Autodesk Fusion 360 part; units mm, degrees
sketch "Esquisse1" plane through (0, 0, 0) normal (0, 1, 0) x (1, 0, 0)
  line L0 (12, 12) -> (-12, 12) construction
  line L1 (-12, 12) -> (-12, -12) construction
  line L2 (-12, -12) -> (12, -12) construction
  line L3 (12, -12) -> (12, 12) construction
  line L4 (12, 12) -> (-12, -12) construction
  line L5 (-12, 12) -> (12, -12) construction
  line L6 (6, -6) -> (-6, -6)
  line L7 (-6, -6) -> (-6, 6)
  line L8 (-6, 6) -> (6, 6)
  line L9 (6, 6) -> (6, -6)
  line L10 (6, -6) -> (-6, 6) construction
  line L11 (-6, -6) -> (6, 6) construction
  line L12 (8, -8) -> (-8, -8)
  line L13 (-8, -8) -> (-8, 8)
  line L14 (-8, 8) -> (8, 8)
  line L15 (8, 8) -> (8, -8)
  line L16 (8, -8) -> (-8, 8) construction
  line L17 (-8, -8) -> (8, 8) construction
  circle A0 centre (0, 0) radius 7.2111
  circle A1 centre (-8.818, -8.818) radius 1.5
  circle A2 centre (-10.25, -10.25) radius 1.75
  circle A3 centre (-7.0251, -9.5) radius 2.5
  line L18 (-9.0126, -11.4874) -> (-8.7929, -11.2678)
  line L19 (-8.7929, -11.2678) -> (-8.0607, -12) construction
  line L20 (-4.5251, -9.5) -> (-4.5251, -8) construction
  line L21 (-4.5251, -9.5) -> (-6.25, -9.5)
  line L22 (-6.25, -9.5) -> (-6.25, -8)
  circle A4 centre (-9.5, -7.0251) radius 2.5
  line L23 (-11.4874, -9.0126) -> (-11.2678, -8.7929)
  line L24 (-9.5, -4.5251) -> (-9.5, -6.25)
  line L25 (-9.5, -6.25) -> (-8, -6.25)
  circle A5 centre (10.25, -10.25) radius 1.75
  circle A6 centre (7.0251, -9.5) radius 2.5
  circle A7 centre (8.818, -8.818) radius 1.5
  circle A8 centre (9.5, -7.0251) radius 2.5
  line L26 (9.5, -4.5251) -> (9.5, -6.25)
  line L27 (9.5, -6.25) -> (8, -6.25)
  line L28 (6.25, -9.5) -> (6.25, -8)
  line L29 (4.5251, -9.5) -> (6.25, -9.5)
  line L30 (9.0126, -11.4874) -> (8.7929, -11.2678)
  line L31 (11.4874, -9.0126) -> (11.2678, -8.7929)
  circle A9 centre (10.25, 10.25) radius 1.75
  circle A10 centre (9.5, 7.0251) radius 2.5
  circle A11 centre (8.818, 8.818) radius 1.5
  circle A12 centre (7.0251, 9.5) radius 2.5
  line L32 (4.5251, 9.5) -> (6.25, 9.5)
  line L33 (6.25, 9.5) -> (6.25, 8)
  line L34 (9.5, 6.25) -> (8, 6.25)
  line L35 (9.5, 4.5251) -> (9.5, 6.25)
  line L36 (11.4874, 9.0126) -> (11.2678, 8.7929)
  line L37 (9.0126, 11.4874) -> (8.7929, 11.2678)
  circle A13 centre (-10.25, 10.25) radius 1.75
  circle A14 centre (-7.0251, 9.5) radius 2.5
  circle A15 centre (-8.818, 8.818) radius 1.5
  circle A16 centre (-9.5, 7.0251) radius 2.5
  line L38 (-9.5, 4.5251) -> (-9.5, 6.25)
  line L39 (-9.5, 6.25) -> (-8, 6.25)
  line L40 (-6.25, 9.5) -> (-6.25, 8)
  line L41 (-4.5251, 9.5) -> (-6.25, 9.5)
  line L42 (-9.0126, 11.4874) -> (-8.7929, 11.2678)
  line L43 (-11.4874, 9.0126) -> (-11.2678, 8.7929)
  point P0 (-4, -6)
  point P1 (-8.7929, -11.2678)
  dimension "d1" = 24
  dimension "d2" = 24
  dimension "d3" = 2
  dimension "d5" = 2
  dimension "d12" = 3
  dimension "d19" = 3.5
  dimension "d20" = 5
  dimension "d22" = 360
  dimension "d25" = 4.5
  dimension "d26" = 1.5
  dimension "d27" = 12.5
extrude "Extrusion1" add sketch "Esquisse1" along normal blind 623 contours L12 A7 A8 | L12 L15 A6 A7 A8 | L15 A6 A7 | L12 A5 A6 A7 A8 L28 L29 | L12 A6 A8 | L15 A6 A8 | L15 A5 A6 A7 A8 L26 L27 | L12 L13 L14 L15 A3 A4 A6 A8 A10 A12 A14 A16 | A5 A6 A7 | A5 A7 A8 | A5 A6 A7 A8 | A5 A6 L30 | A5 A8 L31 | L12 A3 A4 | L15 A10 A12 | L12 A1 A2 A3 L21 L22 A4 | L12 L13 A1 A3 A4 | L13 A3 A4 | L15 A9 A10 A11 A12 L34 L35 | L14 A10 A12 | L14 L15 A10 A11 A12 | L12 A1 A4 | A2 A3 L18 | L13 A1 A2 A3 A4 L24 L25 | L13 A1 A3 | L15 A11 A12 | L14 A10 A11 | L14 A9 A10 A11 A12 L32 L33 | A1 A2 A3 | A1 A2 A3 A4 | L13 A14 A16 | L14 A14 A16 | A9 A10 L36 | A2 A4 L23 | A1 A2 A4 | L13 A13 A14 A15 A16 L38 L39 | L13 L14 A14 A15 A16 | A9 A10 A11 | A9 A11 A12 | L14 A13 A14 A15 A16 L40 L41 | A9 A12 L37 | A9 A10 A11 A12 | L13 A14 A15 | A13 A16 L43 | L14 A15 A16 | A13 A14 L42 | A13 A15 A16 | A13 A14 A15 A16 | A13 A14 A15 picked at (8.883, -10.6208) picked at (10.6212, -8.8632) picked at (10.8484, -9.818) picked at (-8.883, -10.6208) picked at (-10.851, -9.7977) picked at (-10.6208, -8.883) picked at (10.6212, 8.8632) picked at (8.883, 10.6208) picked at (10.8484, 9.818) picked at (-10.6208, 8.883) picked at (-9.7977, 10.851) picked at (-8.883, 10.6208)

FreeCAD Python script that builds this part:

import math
import FreeCAD as App
import Part
import Sketcher

V = App.Vector
Q = App.Units.Quantity

doc = App.newDocument("Part")
body = doc.addObject("PartDesign::Body", "Body")

sketch1 = doc.addObject("Sketcher::SketchObject", "Sketch")
body.addObject(sketch1)
sketch1.AttachmentSupport = (doc.XZ_Plane, [""])
sketch1.MapMode = "FlatFace"
sketch1.addGeometry(Part.ArcOfCircle(Part.Circle(V(7.03, 9.5, 0), V(0, 0, 1), 2.5), math.radians(45), math.radians(180)), False)
sketch1.addGeometry(Part.LineSegment(V(8.79, 11.27, 0), V(9.01, 11.49, 0)), False)
sketch1.addGeometry(Part.ArcOfCircle(Part.Circle(V(10.25, 10.25, 0), V(0, 0, 1), 1.75), math.radians(-45), math.radians(135)), False)
sketch1.addGeometry(Part.LineSegment(V(11.49, 9.01, 0), V(11.27, 8.79, 0)), False)
sketch1.addGeometry(Part.ArcOfCircle(Part.Circle(V(9.5, 7.03, 0), V(0, 0, 1), 2.5), math.radians(-90), math.radians(45)), False)
sketch1.addGeometry(Part.LineSegment(V(9.5, 4.53, 0), V(9.5, 6.25, 0)), False)
sketch1.addGeometry(Part.LineSegment(V(9.5, 6.25, 0), V(8, 6.25, 0)), False)
sketch1.addGeometry(Part.LineSegment(V(8, 6.25, 0), V(8, -6.25, 0)), False)
sketch1.addGeometry(Part.LineSegment(V(8, -6.25, 0), V(9.5, -6.25, 0)), False)
sketch1.addGeometry(Part.LineSegment(V(9.5, -6.25, 0), V(9.5, -4.53, 0)), False)
sketch1.addGeometry(Part.ArcOfCircle(Part.Circle(V(9.5, -7.03, 0), V(0, 0, 1), 2.5), math.radians(-45), math.radians(90)), False)
sketch1.addGeometry(Part.LineSegment(V(11.27, -8.79, 0), V(11.49, -9.01, 0)), False)
sketch1.addGeometry(Part.ArcOfCircle(Part.Circle(V(10.25, -10.25, 0), V(0, 0, 1), 1.75), math.radians(-135), math.radians(45)), False)
sketch1.addGeometry(Part.LineSegment(V(9.01, -11.49, 0), V(8.79, -11.27, 0)), False)
sketch1.addGeometry(Part.ArcOfCircle(Part.Circle(V(7.03, -9.5, 0), V(0, 0, 1), 2.5), math.radians(180), math.radians(315)), False)
sketch1.addGeometry(Part.LineSegment(V(4.53, -9.5, 0), V(6.25, -9.5, 0)), False)
sketch1.addGeometry(Part.LineSegment(V(6.25, -9.5, 0), V(6.25, -8, 0)), False)
sketch1.addGeometry(Part.LineSegment(V(6.25, -8, 0), V(-6.25, -8, 0)), False)
sketch1.addGeometry(Part.LineSegment(V(-6.25, -8, 0), V(-6.25, -9.5, 0)), False)
sketch1.addGeometry(Part.LineSegment(V(-6.25, -9.5, 0), V(-4.53, -9.5, 0)), False)
sketch1.addGeometry(Part.ArcOfCircle(Part.Circle(V(-7.03, -9.5, 0), V(0, 0, 1), 2.5), math.radians(-135), math.radians(0)), False)
sketch1.addGeometry(Part.LineSegment(V(-8.79, -11.27, 0), V(-9.01, -11.49, 0)), False)
sketch1.addGeometry(Part.ArcOfCircle(Part.Circle(V(-10.25, -10.25, 0), V(0, 0, 1), 1.75), math.radians(135), math.radians(315)), False)
sketch1.addGeometry(Part.LineSegment(V(-11.49, -9.01, 0), V(-11.27, -8.79, 0)), False)
sketch1.addGeometry(Part.ArcOfCircle(Part.Circle(V(-9.5, -7.03, 0), V(0, 0, 1), 2.5), math.radians(90), math.radians(225)), False)
sketch1.addGeometry(Part.LineSegment(V(-9.5, -4.53, 0), V(-9.5, -6.25, 0)), False)
sketch1.addGeometry(Part.LineSegment(V(-9.5, -6.25, 0), V(-8, -6.25, 0)), False)
sketch1.addGeometry(Part.LineSegment(V(-8, -6.25, 0), V(-8, 6.25, 0)), False)
sketch1.addGeometry(Part.LineSegment(V(-8, 6.25, 0), V(-9.5, 6.25, 0)), False)
sketch1.addGeometry(Part.LineSegment(V(-9.5, 6.25, 0), V(-9.5, 4.53, 0)), False)
sketch1.addGeometry(Part.ArcOfCircle(Part.Circle(V(-9.5, 7.03, 0), V(0, 0, 1), 2.5), math.radians(135), math.radians(270)), False)
sketch1.addGeometry(Part.LineSegment(V(-11.27, 8.79, 0), V(-11.49, 9.01, 0)), False)
sketch1.addGeometry(Part.ArcOfCircle(Part.Circle(V(-10.25, 10.25, 0), V(0, 0, 1), 1.75), math.radians(45), math.radians(225)), False)
sketch1.addGeometry(Part.LineSegment(V(-9.01, 11.49, 0), V(-8.79, 11.27, 0)), False)
sketch1.addGeometry(Part.ArcOfCircle(Part.Circle(V(-7.03, 9.5, 0), V(0, 0, 1), 2.5), math.radians(0), math.radians(135)), False)
sketch1.addGeometry(Part.LineSegment(V(-4.53, 9.5, 0), V(-6.25, 9.5, 0)), False)
sketch1.addGeometry(Part.LineSegment(V(-6.25, 9.5, 0), V(-6.25, 8, 0)), False)
sketch1.addGeometry(Part.LineSegment(V(-6.25, 8, 0), V(6.25, 8, 0)), False)
sketch1.addGeometry(Part.LineSegment(V(6.25, 8, 0), V(6.25, 9.5, 0)), False)
sketch1.addGeometry(Part.LineSegment(V(6.25, 9.5, 0), V(4.53, 9.5, 0)), False)
sketch1.addGeometry(Part.Circle(V(8.82, 8.82, 0), V(0, 0, 1), 1.5), False)
sketch1.addGeometry(Part.LineSegment(V(6, 6, 0), V(4, 6, 0)), False)
sketch1.addGeometry(Part.ArcOfCircle(Part.Circle(V(0, 0, 0), V(0, 0, 1), 7.21), math.radians(56), math.radians(124)), False)
sketch1.addGeometry(Part.LineSegment(V(-4, 6, 0), V(-6, 6, 0)), False)
sketch1.addGeometry(Part.LineSegment(V(-6, 6, 0), V(-6, 4, 0)), False)
sketch1.addGeometry(Part.ArcOfCircle(Part.Circle(V(0, 0, 0), V(0, 0, 1), 7.21), math.radians(146), math.radians(214)), False)
sketch1.addGeometry(Part.LineSegment(V(-6, -4, 0), V(-6, -6, 0)), False)
sketch1.addGeometry(Part.LineSegment(V(-6, -6, 0), V(-4, -6, 0)), False)
sketch1.addGeometry(Part.ArcOfCircle(Part.Circle(V(0, 0, 0), V(0, 0, 1), 7.21), math.radians(-124), math.radians(-56)), False)
sketch1.addGeometry(Part.LineSegment(V(4, -6, 0), V(6, -6, 0)), False)
sketch1.addGeometry(Part.LineSegment(V(6, -6, 0), V(6, -4, 0)), False)
sketch1.addGeometry(Part.ArcOfCircle(Part.Circle(V(0, 0, 0), V(0, 0, 1), 7.21), math.radians(-34), math.radians(34)), False)
sketch1.addGeometry(Part.LineSegment(V(6, 4, 0), V(6, 6, 0)), False)
sketch1.addGeometry(Part.Circle(V(-8.82, 8.82, 0), V(0, 0, 1), 1.5), False)
sketch1.addGeometry(Part.Circle(V(-8.82, -8.82, 0), V(0, 0, 1), 1.5), False)
sketch1.addGeometry(Part.Circle(V(8.82, -8.82, 0), V(0, 0, 1), 1.5), False)
sketch1.addConstraint(Sketcher.Constraint("Coincident", 0, 1, 1, 1))
sketch1.addConstraint(Sketcher.Constraint("Tangent", 1, 2, 2, 2))
sketch1.addConstraint(Sketcher.Constraint("Tangent", 2, 1, 3, 1))
sketch1.addConstraint(Sketcher.Constraint("Coincident", 3, 2, 4, 2))
sketch1.addConstraint(Sketcher.Constraint("Coincident", 4, 1, 5, 1))
sketch1.addConstraint(Sketcher.Constraint("Coincident", 5, 2, 6, 1))
sketch1.addConstraint(Sketcher.Constraint("Coincident", 6, 2, 7, 1))
sketch1.addConstraint(Sketcher.Constraint("Coincident", 7, 2, 8, 1))
sketch1.addConstraint(Sketcher.Constraint("Coincident", 8, 2, 9, 1))
sketch1.addConstraint(Sketcher.Constraint("Coincident", 9, 2, 10, 2))
sketch1.addConstraint(Sketcher.Constraint("Coincident", 10, 1, 11, 1))
sketch1.addConstraint(Sketcher.Constraint("Tangent", 11, 2, 12, 2))
sketch1.addConstraint(Sketcher.Constraint("Tangent", 12, 1, 13, 1))
sketch1.addConstraint(Sketcher.Constraint("Coincident", 13, 2, 14, 2))
sketch1.addConstraint(Sketcher.Constraint("Coincident", 14, 1, 15, 1))
sketch1.addConstraint(Sketcher.Constraint("Coincident", 15, 2, 16, 1))
sketch1.addConstraint(Sketcher.Constraint("Coincident", 16, 2, 17, 1))
sketch1.addConstraint(Sketcher.Constraint("Coincident", 17, 2, 18, 1))
sketch1.addConstraint(Sketcher.Constraint("Coincident", 18, 2, 19, 1))
sketch1.addConstraint(Sketcher.Constraint("Coincident", 19, 2, 20, 2))
sketch1.addConstraint(Sketcher.Constraint("Coincident", 20, 1, 21, 1))
sketch1.addConstraint(Sketcher.Constraint("Tangent", 21, 2, 22, 2))
sketch1.addConstraint(Sketcher.Constraint("Tangent", 22, 1, 23, 1))
sketch1.addConstraint(Sketcher.Constraint("Coincident", 23, 2, 24, 2))
sketch1.addConstraint(Sketcher.Constraint("Coincident", 24, 1, 25, 1))
sketch1.addConstraint(Sketcher.Constraint("Coincident", 25, 2, 26, 1))
sketch1.addConstraint(Sketcher.Constraint("Coincident", 26, 2, 27, 1))
sketch1.addConstraint(Sketcher.Constraint("Coincident", 27, 2, 28, 1))
sketch1.addConstraint(Sketcher.Constraint("Coincident", 28, 2, 29, 1))
sketch1.addConstraint(Sketcher.Constraint("Coincident", 29, 2, 30, 2))
sketch1.addConstraint(Sketcher.Constraint("Coincident", 30, 1, 31, 1))
sketch1.addConstraint(Sketcher.Constraint("Tangent", 31, 2, 32, 2))
sketch1.addConstraint(Sketcher.Constraint("Tangent", 32, 1, 33, 1))
sketch1.addConstraint(Sketcher.Constraint("Coincident", 33, 2, 34, 2))
sketch1.addConstraint(Sketcher.Constraint("Coincident", 34, 1, 35, 1))
sketch1.addConstraint(Sketcher.Constraint("Coincident", 35, 2, 36, 1))
sketch1.addConstraint(Sketcher.Constraint("Coincident", 36, 2, 37, 1))
sketch1.addConstraint(Sketcher.Constraint("Coincident", 37, 2, 38, 1))
sketch1.addConstraint(Sketcher.Constraint("Coincident", 38, 2, 39, 1))
sketch1.addConstraint(Sketcher.Constraint("Coincident", 39, 2, 0, 2))
sketch1.addConstraint(Sketcher.Constraint("Coincident", 41, 2, 42, 1))
sketch1.addConstraint(Sketcher.Constraint("Coincident", 42, 2, 43, 1))
sketch1.addConstraint(Sketcher.Constraint("Coincident", 43, 2, 44, 1))
sketch1.addConstraint(Sketcher.Constraint("Coincident", 44, 2, 45, 1))
sketch1.addConstraint(Sketcher.Constraint("Coincident", 45, 2, 46, 1))
sketch1.addConstraint(Sketcher.Constraint("Coincident", 46, 2, 47, 1))
sketch1.addConstraint(Sketcher.Constraint("Coincident", 47, 2, 48, 1))
sketch1.addConstraint(Sketcher.Constraint("Coincident", 48, 2, 49, 1))
sketch1.addConstraint(Sketcher.Constraint("Coincident", 49, 2, 50, 1))
sketch1.addConstraint(Sketcher.Constraint("Coincident", 50, 2, 51, 1))
sketch1.addConstraint(Sketcher.Constraint("Coincident", 51, 2, 52, 1))
sketch1.addConstraint(Sketcher.Constraint("Coincident", 52, 2, 41, 1))
sketch1.addConstraint(Sketcher.Constraint("Vertical", 5))
sketch1.addConstraint(Sketcher.Constraint("Horizontal", 6))
sketch1.addConstraint(Sketcher.Constraint("Vertical", 7))
sketch1.addConstraint(Sketcher.Constraint("Horizontal", 8))
sketch1.addConstraint(Sketcher.Constraint("Vertical", 9))
sketch1.addConstraint(Sketcher.Constraint("Horizontal", 15))
sketch1.addConstraint(Sketcher.Constraint("Vertical", 16))
sketch1.addConstraint(Sketcher.Constraint("Horizontal", 17))
sketch1.addConstraint(Sketcher.Constraint("Vertical", 18))
sketch1.addConstraint(Sketcher.Constraint("Horizontal", 19))
sketch1.addConstraint(Sketcher.Constraint("Vertical", 25))
sketch1.addConstraint(Sketcher.Constraint("Horizontal", 26))
sketch1.addConstraint(Sketcher.Constraint("Vertical", 27))
sketch1.addConstraint(Sketcher.Constraint("Horizontal", 28))
sketch1.addConstraint(Sketcher.Constraint("Vertical", 29))
sketch1.addConstraint(Sketcher.Constraint("Horizontal", 35))
sketch1.addConstraint(Sketcher.Constraint("Vertical", 36))
sketch1.addConstraint(Sketcher.Constraint("Horizontal", 37))
sketch1.addConstraint(Sketcher.Constraint("Vertical", 38))
sketch1.addConstraint(Sketcher.Constraint("Horizontal", 39))
sketch1.addConstraint(Sketcher.Constraint("Horizontal", 41))
sketch1.addConstraint(Sketcher.Constraint("Horizontal", 43))
sketch1.addConstraint(Sketcher.Constraint("Vertical", 44))
sketch1.addConstraint(Sketcher.Constraint("Vertical", 46))
sketch1.addConstraint(Sketcher.Constraint("Horizontal", 47))
sketch1.addConstraint(Sketcher.Constraint("Horizontal", 49))
sketch1.addConstraint(Sketcher.Constraint("Vertical", 50))
sketch1.addConstraint(Sketcher.Constraint("Vertical", 52))
sketch1.addConstraint(Sketcher.Constraint("Coincident", 42, 3, -1, 1))
sketch1.addConstraint(Sketcher.Constraint("Coincident", 45, 3, -1, 1))
sketch1.addConstraint(Sketcher.Constraint("Coincident", 48, 3, -1, 1))
sketch1.addConstraint(Sketcher.Constraint("Coincident", 51, 3, -1, 1))
sketch1.addConstraint(Sketcher.Constraint("Equal", 0, 4))
sketch1.addConstraint(Sketcher.Constraint("Equal", 4, 10))
sketch1.addConstraint(Sketcher.Constraint("Equal", 2, 12))
sketch1.addConstraint(Sketcher.Constraint("Equal", 10, 14))
sketch1.addConstraint(Sketcher.Constraint("Equal", 14, 20))
sketch1.addConstraint(Sketcher.Constraint("Equal", 12, 22))
sketch1.addConstraint(Sketcher.Constraint("Equal", 20, 24))
sketch1.addConstraint(Sketcher.Constraint("Equal", 24, 30))
sketch1.addConstraint(Sketcher.Constraint("Equal", 22, 32))
sketch1.addConstraint(Sketcher.Constraint("Equal", 30, 34))
sketch1.addConstraint(Sketcher.Constraint("Equal", 42, 45))
sketch1.addConstraint(Sketcher.Constraint("Equal", 45, 48))
sketch1.addConstraint(Sketcher.Constraint("Equal", 48, 51))
sketch1.addConstraint(Sketcher.Constraint("Equal", 40, 53))
sketch1.addConstraint(Sketcher.Constraint("Equal", 53, 54))
sketch1.addConstraint(Sketcher.Constraint("Equal", 54, 55))
sketch1.addConstraint(Sketcher.Constraint("Symmetric", 0, 3, 20, 3, -1, 1))
sketch1.addConstraint(Sketcher.Constraint("Symmetric", 2, 3, 22, 3, -1, 1))
sketch1.addConstraint(Sketcher.Constraint("Symmetric", 4, 3, 24, 3, -1, 1))
sketch1.addConstraint(Sketcher.Constraint("Symmetric", 10, 3, 30, 3, -1, 1))
sketch1.addConstraint(Sketcher.Constraint("Symmetric", 12, 3, 32, 3, -1, 1))
sketch1.addConstraint(Sketcher.Constraint("Symmetric", 14, 3, 34, 3, -1, 1))
sketch1.addConstraint(Sketcher.Constraint("Symmetric", 40, 3, 54, 3, -1, 1))
sketch1.addConstraint(Sketcher.Constraint("Symmetric", 53, 3, 55, 3, -1, 1))
sketch1.addConstraint(Sketcher.Constraint("Symmetric", 5, 2, 25, 2, -1, 1))
sketch1.addConstraint(Sketcher.Constraint("Symmetric", 7, 2, 27, 2, -1, 1))
sketch1.addConstraint(Sketcher.Constraint("Symmetric", 15, 2, 35, 2, -1, 1))
sketch1.addConstraint(Sketcher.Constraint("Symmetric", 17, 2, 37, 2, -1, 1))
sketch1.addConstraint(Sketcher.Constraint("Symmetric", 43, 2, 49, 2, -1, 1))
sketch1.addConstraint(Sketcher.Constraint("Symmetric", 46, 2, 52, 2, -1, 1))
sketch1.addConstraint(Sketcher.Constraint("Symmetric", 14, 3, 20, 3, -2))
sketch1.addConstraint(Sketcher.Constraint("Symmetric", 12, 3, 22, 3, -2))
sketch1.addConstraint(Sketcher.Constraint("Symmetric", 10, 3, 24, 3, -2))
sketch1.addConstraint(Sketcher.Constraint("Symmetric", 40, 3, 53, 3, -2))
sketch1.addConstraint(Sketcher.Constraint("Symmetric", 15, 2, 18, 2, -2))
sketch1.addConstraint(Sketcher.Constraint("Symmetric", 8, 2, 25, 2, -2))
sketch1.addConstraint(Sketcher.Constraint("Symmetric", 46, 2, 49, 2, -2))
sketch1.addConstraint(Sketcher.Constraint("Parallel", 1, 3))
sketch1.addConstraint(Sketcher.Constraint("Perpendicular", 3, 11))
sketch1.addConstraint(Sketcher.Constraint("Parallel", 11, 13))
sketch1.addConstraint(Sketcher.Constraint("Perpendicular", 13, 21))
sketch1.addConstraint(Sketcher.Constraint("Parallel", 21, 23))
sketch1.addConstraint(Sketcher.Constraint("Perpendicular", 23, 31))
sketch1.addConstraint(Sketcher.Constraint("Parallel", 31, 33))
sketch1.addConstraint(Sketcher.Constraint("Horizontal", 20, 3, 14, 1))
sketch1.addConstraint(Sketcher.Constraint("Horizontal", 13, 2, 20, 1))
sketch1.addConstraint(Sketcher.Constraint("Horizontal", 35, 2, 38, 2))
sketch1.addConstraint(Sketcher.Constraint("Vertical", 10, 3, 4, 1))
sketch1.addConstraint(Sketcher.Constraint("Vertical", 25, 2, 28, 2))
sketch1.addConstraint(Sketcher.Constraint("Equal", 39, 5))
sketch1.addConstraint(Sketcher.Constraint("Equal", 37, 7))
sketch1.addConstraint(Sketcher.Constraint("Equal", 28, 16))
sketch1.addConstraint(Sketcher.Constraint("Equal", 49, 44))
sketch1.addConstraint(Sketcher.Constraint("Equal", 1, 3))
sketch1.addConstraint(Sketcher.Constraint("Diameter", 40, Q("3 mm")))
sketch1.addConstraint(Sketcher.Constraint("Radius", 0, Q("2.5 mm")))
sketch1.addConstraint(Sketcher.Constraint("DistanceX", 41, 2, 41, 1, Q("2 mm")))
sketch1.addConstraint(Sketcher.Constraint("Radius", 2, Q("1.75 mm")))
sketch1.addConstraint(Sketcher.Constraint("DistanceX", 6, 2, 6, 1, Q("1.5 mm")))
sketch1.addConstraint(Sketcher.Constraint("DistanceX", 17, 2, 17, 1, Q("12.5 mm")))
sketch1.addConstraint(Sketcher.Constraint("DistanceX", -1, 1, 6, 2, Q("8 mm")))
sketch1.addConstraint(Sketcher.Constraint("DistanceX", -1, 1, 41, 2, Q("4 mm")))
sketch1.addConstraint(Sketcher.Constraint("DistanceX", 15, 1, 15, 2, Q("1.725 mm")))
sketch1.addConstraint(Sketcher.Constraint("DistanceX", -1, 1, 2, 3, Q("10.25 mm")))
sketch1.addConstraint(Sketcher.Constraint("DistanceY", -1, 1, 2, 3, Q("10.25 mm")))
sketch1.addConstraint(Sketcher.Constraint("DistanceX", -1, 1, 40, 3, Q("8.818 mm")))
sketch1.addConstraint(Sketcher.Constraint("DistanceY", -1, 1, 40, 3, Q("8.818 mm")))
pad1 = doc.addObject("PartDesign::Pad", "Pad")
body.addObject(pad1)
pad1.Profile = sketch1
pad1.Length = 623
pad1.Reversed = True

doc.recompute()
